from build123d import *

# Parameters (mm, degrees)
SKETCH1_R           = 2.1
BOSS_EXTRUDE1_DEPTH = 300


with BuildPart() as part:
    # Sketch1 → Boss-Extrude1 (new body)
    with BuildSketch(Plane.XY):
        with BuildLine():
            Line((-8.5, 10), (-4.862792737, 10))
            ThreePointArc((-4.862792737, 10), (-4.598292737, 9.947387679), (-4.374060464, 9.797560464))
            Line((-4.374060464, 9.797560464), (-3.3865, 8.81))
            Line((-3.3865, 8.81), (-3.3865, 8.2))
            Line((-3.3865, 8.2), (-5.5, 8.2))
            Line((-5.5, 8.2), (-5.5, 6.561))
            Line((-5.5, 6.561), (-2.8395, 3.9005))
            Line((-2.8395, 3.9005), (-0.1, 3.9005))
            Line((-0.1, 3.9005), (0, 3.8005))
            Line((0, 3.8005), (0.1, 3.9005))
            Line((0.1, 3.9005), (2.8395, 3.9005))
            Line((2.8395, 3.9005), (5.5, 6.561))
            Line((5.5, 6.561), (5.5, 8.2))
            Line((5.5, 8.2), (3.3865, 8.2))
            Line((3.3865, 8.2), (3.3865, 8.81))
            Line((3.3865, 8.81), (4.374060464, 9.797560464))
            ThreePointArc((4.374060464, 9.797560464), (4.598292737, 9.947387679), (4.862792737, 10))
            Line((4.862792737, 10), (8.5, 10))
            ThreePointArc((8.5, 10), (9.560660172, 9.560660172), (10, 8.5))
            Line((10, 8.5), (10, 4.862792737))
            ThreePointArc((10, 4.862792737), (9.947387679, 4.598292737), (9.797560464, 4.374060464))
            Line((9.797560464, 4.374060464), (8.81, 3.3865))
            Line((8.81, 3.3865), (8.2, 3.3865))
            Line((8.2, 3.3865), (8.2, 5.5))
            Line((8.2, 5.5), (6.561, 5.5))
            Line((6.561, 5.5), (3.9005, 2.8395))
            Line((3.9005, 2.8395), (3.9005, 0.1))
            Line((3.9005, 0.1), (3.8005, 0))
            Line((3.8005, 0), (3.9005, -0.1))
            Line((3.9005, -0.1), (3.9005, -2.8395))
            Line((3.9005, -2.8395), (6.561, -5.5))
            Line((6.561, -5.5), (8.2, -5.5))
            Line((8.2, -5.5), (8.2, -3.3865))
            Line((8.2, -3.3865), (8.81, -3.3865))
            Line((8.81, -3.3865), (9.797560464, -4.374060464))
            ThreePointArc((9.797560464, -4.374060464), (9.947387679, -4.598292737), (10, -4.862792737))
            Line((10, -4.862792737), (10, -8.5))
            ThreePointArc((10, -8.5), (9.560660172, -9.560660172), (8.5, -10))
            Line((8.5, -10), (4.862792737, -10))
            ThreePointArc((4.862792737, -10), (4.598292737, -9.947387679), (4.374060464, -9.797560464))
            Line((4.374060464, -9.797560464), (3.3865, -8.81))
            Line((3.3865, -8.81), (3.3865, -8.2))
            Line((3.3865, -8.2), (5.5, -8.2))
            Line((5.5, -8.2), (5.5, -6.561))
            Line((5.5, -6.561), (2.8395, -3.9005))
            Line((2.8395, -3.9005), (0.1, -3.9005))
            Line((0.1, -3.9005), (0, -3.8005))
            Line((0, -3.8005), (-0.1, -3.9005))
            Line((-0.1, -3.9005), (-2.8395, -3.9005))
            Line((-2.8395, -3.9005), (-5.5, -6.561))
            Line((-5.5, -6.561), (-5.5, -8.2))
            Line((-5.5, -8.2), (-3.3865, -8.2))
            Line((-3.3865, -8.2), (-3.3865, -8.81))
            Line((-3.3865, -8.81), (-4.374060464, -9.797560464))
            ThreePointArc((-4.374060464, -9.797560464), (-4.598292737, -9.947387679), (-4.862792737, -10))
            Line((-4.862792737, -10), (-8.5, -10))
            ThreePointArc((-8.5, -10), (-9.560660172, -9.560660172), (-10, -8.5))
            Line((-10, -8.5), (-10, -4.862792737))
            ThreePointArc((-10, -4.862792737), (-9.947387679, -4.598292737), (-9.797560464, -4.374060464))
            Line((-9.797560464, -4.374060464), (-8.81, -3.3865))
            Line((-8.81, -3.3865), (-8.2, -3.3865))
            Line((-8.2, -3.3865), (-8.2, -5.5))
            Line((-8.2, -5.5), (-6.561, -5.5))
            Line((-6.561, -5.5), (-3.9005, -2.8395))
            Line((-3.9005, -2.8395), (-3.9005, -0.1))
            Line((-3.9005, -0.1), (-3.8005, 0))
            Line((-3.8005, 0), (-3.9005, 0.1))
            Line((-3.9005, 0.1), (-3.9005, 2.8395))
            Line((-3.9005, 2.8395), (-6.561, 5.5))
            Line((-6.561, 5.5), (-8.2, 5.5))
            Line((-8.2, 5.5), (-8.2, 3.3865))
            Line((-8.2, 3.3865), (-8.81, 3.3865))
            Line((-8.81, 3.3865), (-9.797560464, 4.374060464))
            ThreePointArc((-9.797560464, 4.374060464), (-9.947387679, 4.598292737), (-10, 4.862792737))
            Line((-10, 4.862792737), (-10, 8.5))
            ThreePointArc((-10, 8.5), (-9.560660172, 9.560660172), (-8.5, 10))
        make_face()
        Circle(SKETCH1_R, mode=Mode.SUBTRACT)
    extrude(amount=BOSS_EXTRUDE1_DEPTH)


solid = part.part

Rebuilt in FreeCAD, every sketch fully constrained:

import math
import FreeCAD as App
import Part
import Sketcher
from FreeCAD import Vector
Q = App.Units.Quantity

doc = App.newDocument("Part")
body = doc.addObject("PartDesign::Body", "Body")

# Sketch on XY plane
sketch1 = body.newObject("Sketcher::SketchObject", "Sketch")
sketch1.AttachmentSupport = (doc.getObject("XY_Plane"), [""])
sketch1.MapMode = "FlatFace"
sketch1.addGeometry(Part.LineSegment(Vector(-4.862793, 10, 0), Vector(-8.5, 10, 0)), False)
sketch1.addGeometry(Part.ArcOfCircle(Part.Circle(Vector(-8.5, 8.5, 0), Vector(0, 0, 1), 1.5), math.radians(90), math.radians(180)), False)
sketch1.addGeometry(Part.LineSegment(Vector(-10, 8.5, 0), Vector(-10, 4.862793, 0)), False)
sketch1.addGeometry(Part.ArcOfCircle(Part.Circle(Vector(-9.308828, 4.862793, 0), Vector(0, 0, 1), 0.691172), math.radians(180), math.radians(225)), False)
sketch1.addGeometry(Part.LineSegment(Vector(-9.79756, 4.37406, 0), Vector(-8.81, 3.3865, 0)), False)
sketch1.addGeometry(Part.LineSegment(Vector(-8.81, 3.3865, 0), Vector(-8.2, 3.3865, 0)), False)
sketch1.addGeometry(Part.LineSegment(Vector(-8.2, 3.3865, 0), Vector(-8.2, 5.5, 0)), False)
sketch1.addGeometry(Part.LineSegment(Vector(-8.2, 5.5, 0), Vector(-6.561, 5.5, 0)), False)
sketch1.addGeometry(Part.LineSegment(Vector(-6.561, 5.5, 0), Vector(-3.9005, 2.8395, 0)), False)
sketch1.addGeometry(Part.LineSegment(Vector(-3.9005, 2.8395, 0), Vector(-3.9005, 0.1, 0)), False)
sketch1.addGeometry(Part.LineSegment(Vector(-3.9005, 0.1, 0), Vector(-3.8005, 0, 0)), False)
sketch1.addGeometry(Part.LineSegment(Vector(-3.8005, 0, 0), Vector(-3.9005, -0.1, 0)), False)
sketch1.addGeometry(Part.LineSegment(Vector(-3.9005, -0.1, 0), Vector(-3.9005, -2.8395, 0)), False)
sketch1.addGeometry(Part.LineSegment(Vector(-3.9005, -2.8395, 0), Vector(-6.561, -5.5, 0)), False)
sketch1.addGeometry(Part.LineSegment(Vector(-6.561, -5.5, 0), Vector(-8.2, -5.5, 0)), False)
sketch1.addGeometry(Part.LineSegment(Vector(-8.2, -5.5, 0), Vector(-8.2, -3.3865, 0)), False)
sketch1.addGeometry(Part.LineSegment(Vector(-8.2, -3.3865, 0), Vector(-8.81, -3.3865, 0)), False)
sketch1.addGeometry(Part.LineSegment(Vector(-8.81, -3.3865, 0), Vector(-9.79756, -4.37406, 0)), False)
sketch1.addGeometry(Part.ArcOfCircle(Part.Circle(Vector(-9.308828, -4.862793, 0), Vector(0, 0, 1), 0.691172), math.radians(135), math.radians(180)), False)
sketch1.addGeometry(Part.LineSegment(Vector(-10, -4.862793, 0), Vector(-10, -8.5, 0)), False)
sketch1.addGeometry(Part.ArcOfCircle(Part.Circle(Vector(-8.5, -8.5, 0), Vector(0, 0, 1), 1.5), math.radians(180), math.radians(270)), False)
sketch1.addGeometry(Part.LineSegment(Vector(-8.5, -10, 0), Vector(-4.862793, -10, 0)), False)
sketch1.addGeometry(Part.ArcOfCircle(Part.Circle(Vector(-4.862793, -9.308828, 0), Vector(0, 0, 1), 0.691172), math.radians(-90), math.radians(-45)), False)
sketch1.addGeometry(Part.LineSegment(Vector(-4.37406, -9.79756, 0), Vector(-3.3865, -8.81, 0)), False)
sketch1.addGeometry(Part.LineSegment(Vector(-3.3865, -8.81, 0), Vector(-3.3865, -8.2, 0)), False)
sketch1.addGeometry(Part.LineSegment(Vector(-3.3865, -8.2, 0), Vector(-5.5, -8.2, 0)), False)
sketch1.addGeometry(Part.LineSegment(Vector(-5.5, -8.2, 0), Vector(-5.5, -6.561, 0)), False)
sketch1.addGeometry(Part.LineSegment(Vector(-5.5, -6.561, 0), Vector(-2.8395, -3.9005, 0)), False)
sketch1.addGeometry(Part.LineSegment(Vector(-2.8395, -3.9005, 0), Vector(-0.1, -3.9005, 0)), False)
sketch1.addGeometry(Part.LineSegment(Vector(-0.1, -3.9005, 0), Vector(0, -3.8005, 0)), False)
sketch1.addGeometry(Part.LineSegment(Vector(0, -3.8005, 0), Vector(0.1, -3.9005, 0)), False)
sketch1.addGeometry(Part.LineSegment(Vector(0.1, -3.9005, 0), Vector(2.8395, -3.9005, 0)), False)
sketch1.addGeometry(Part.LineSegment(Vector(2.8395, -3.9005, 0), Vector(5.5, -6.561, 0)), False)
sketch1.addGeometry(Part.LineSegment(Vector(5.5, -6.561, 0), Vector(5.5, -8.2, 0)), False)
sketch1.addGeometry(Part.LineSegment(Vector(5.5, -8.2, 0), Vector(3.3865, -8.2, 0)), False)
sketch1.addGeometry(Part.LineSegment(Vector(3.3865, -8.2, 0), Vector(3.3865, -8.81, 0)), False)
sketch1.addGeometry(Part.LineSegment(Vector(3.3865, -8.81, 0), Vector(4.37406, -9.79756, 0)), False)
sketch1.addGeometry(Part.ArcOfCircle(Part.Circle(Vector(4.862793, -9.308828, 0), Vector(0, 0, 1), 0.691172), math.radians(-135), math.radians(-90)), False)
sketch1.addGeometry(Part.LineSegment(Vector(4.862793, -10, 0), Vector(8.5, -10, 0)), False)
sketch1.addGeometry(Part.ArcOfCircle(Part.Circle(Vector(8.5, -8.5, 0), Vector(0, 0, 1), 1.5), math.radians(-90), math.radians(0)), False)
sketch1.addGeometry(Part.LineSegment(Vector(10, -8.5, 0), Vector(10, -4.862793, 0)), False)
sketch1.addGeometry(Part.ArcOfCircle(Part.Circle(Vector(9.308828, -4.862793, 0), Vector(0, 0, 1), 0.691172), math.radians(0), math.radians(45)), False)
sketch1.addGeometry(Part.LineSegment(Vector(9.79756, -4.37406, 0), Vector(8.81, -3.3865, 0)), False)
sketch1.addGeometry(Part.LineSegment(Vector(8.81, -3.3865, 0), Vector(8.2, -3.3865, 0)), False)
sketch1.addGeometry(Part.LineSegment(Vector(8.2, -3.3865, 0), Vector(8.2, -5.5, 0)), False)
sketch1.addGeometry(Part.LineSegment(Vector(8.2, -5.5, 0), Vector(6.561, -5.5, 0)), False)
sketch1.addGeometry(Part.LineSegment(Vector(6.561, -5.5, 0), Vector(3.9005, -2.8395, 0)), False)
sketch1.addGeometry(Part.LineSegment(Vector(3.9005, -2.8395, 0), Vector(3.9005, -0.1, 0)), False)
sketch1.addGeometry(Part.LineSegment(Vector(3.9005, -0.1, 0), Vector(3.8005, 0, 0)), False)
sketch1.addGeometry(Part.LineSegment(Vector(3.8005, 0, 0), Vector(3.9005, 0.1, 0)), False)
sketch1.addGeometry(Part.LineSegment(Vector(3.9005, 0.1, 0), Vector(3.9005, 2.8395, 0)), False)
sketch1.addGeometry(Part.LineSegment(Vector(3.9005, 2.8395, 0), Vector(6.561, 5.5, 0)), False)
sketch1.addGeometry(Part.LineSegment(Vector(6.561, 5.5, 0), Vector(8.2, 5.5, 0)), False)
sketch1.addGeometry(Part.LineSegment(Vector(8.2, 5.5, 0), Vector(8.2, 3.3865, 0)), False)
sketch1.addGeometry(Part.LineSegment(Vector(8.2, 3.3865, 0), Vector(8.81, 3.3865, 0)), False)
sketch1.addGeometry(Part.LineSegment(Vector(8.81, 3.3865, 0), Vector(9.79756, 4.37406, 0)), False)
sketch1.addGeometry(Part.ArcOfCircle(Part.Circle(Vector(9.308828, 4.862793, 0), Vector(0, 0, 1), 0.691172), math.radians(-45), math.radians(0)), False)
sketch1.addGeometry(Part.LineSegment(Vector(10, 4.862793, 0), Vector(10, 8.5, 0)), False)
sketch1.addGeometry(Part.ArcOfCircle(Part.Circle(Vector(8.5, 8.5, 0), Vector(0, 0, 1), 1.5), math.radians(0), math.radians(90)), False)
sketch1.addGeometry(Part.LineSegment(Vector(8.5, 10, 0), Vector(4.862793, 10, 0)), False)
sketch1.addGeometry(Part.ArcOfCircle(Part.Circle(Vector(4.862793, 9.308828, 0), Vector(0, 0, 1), 0.691172), math.radians(90), math.radians(135)), False)
sketch1.addGeometry(Part.LineSegment(Vector(4.37406, 9.79756, 0), Vector(3.3865, 8.81, 0)), False)
sketch1.addGeometry(Part.LineSegment(Vector(3.3865, 8.81, 0), Vector(3.3865, 8.2, 0)), False)
sketch1.addGeometry(Part.LineSegment(Vector(3.3865, 8.2, 0), Vector(5.5, 8.2, 0)), False)
sketch1.addGeometry(Part.LineSegment(Vector(5.5, 8.2, 0), Vector(5.5, 6.561, 0)), False)
sketch1.addGeometry(Part.LineSegment(Vector(5.5, 6.561, 0), Vector(2.8395, 3.9005, 0)), False)
sketch1.addGeometry(Part.LineSegment(Vector(2.8395, 3.9005, 0), Vector(0.1, 3.9005, 0)), False)
sketch1.addGeometry(Part.LineSegment(Vector(0.1, 3.9005, 0), Vector(0, 3.8005, 0)), False)
sketch1.addGeometry(Part.LineSegment(Vector(0, 3.8005, 0), Vector(-0.1, 3.9005, 0)), False)
sketch1.addGeometry(Part.LineSegment(Vector(-0.1, 3.9005, 0), Vector(-2.8395, 3.9005, 0)), False)
sketch1.addGeometry(Part.LineSegment(Vector(-2.8395, 3.9005, 0), Vector(-5.5, 6.561, 0)), False)
sketch1.addGeometry(Part.LineSegment(Vector(-5.5, 6.561, 0), Vector(-5.5, 8.2, 0)), False)
sketch1.addGeometry(Part.LineSegment(Vector(-5.5, 8.2, 0), Vector(-3.3865, 8.2, 0)), False)
sketch1.addGeometry(Part.LineSegment(Vector(-3.3865, 8.2, 0), Vector(-3.3865, 8.81, 0)), False)
sketch1.addGeometry(Part.LineSegment(Vector(-3.3865, 8.81, 0), Vector(-4.37406, 9.79756, 0)), False)
sketch1.addGeometry(Part.ArcOfCircle(Part.Circle(Vector(-4.862793, 9.308828, 0), Vector(0, 0, 1), 0.691172), math.radians(45), math.radians(90)), False)
sketch1.addGeometry(Part.Circle(Vector(0, 0, 0), Vector(0, 0, 1), 2.1), False)
sketch1.addConstraint(Sketcher.Constraint("Tangent", 0, 2, 1, 1))
sketch1.addConstraint(Sketcher.Constraint("Tangent", 1, 2, 2, 1))
sketch1.addConstraint(Sketcher.Constraint("Tangent", 2, 2, 3, 1))
sketch1.addConstraint(Sketcher.Constraint("Tangent", 3, 2, 4, 1))
sketch1.addConstraint(Sketcher.Constraint("Coincident", 4, 2, 5, 1))
sketch1.addConstraint(Sketcher.Constraint("Coincident", 5, 2, 6, 1))
sketch1.addConstraint(Sketcher.Constraint("Coincident", 6, 2, 7, 1))
sketch1.addConstraint(Sketcher.Constraint("Coincident", 7, 2, 8, 1))
sketch1.addConstraint(Sketcher.Constraint("Coincident", 8, 2, 9, 1))
sketch1.addConstraint(Sketcher.Constraint("Coincident", 9, 2, 10, 1))
sketch1.addConstraint(Sketcher.Constraint("Coincident", 10, 2, 11, 1))
sketch1.addConstraint(Sketcher.Constraint("Coincident", 11, 2, 12, 1))
sketch1.addConstraint(Sketcher.Constraint("Coincident", 12, 2, 13, 1))
sketch1.addConstraint(Sketcher.Constraint("Coincident", 13, 2, 14, 1))
sketch1.addConstraint(Sketcher.Constraint("Coincident", 14, 2, 15, 1))
sketch1.addConstraint(Sketcher.Constraint("Coincident", 15, 2, 16, 1))
sketch1.addConstraint(Sketcher.Constraint("Coincident", 16, 2, 17, 1))
sketch1.addConstraint(Sketcher.Constraint("Tangent", 17, 2, 18, 1))
sketch1.addConstraint(Sketcher.Constraint("Tangent", 18, 2, 19, 1))
sketch1.addConstraint(Sketcher.Constraint("Tangent", 19, 2, 20, 1))
sketch1.addConstraint(Sketcher.Constraint("Tangent", 20, 2, 21, 1))
sketch1.addConstraint(Sketcher.Constraint("Tangent", 21, 2, 22, 1))
sketch1.addConstraint(Sketcher.Constraint("Tangent", 22, 2, 23, 1))
sketch1.addConstraint(Sketcher.Constraint("Coincident", 23, 2, 24, 1))
sketch1.addConstraint(Sketcher.Constraint("Coincident", 24, 2, 25, 1))
sketch1.addConstraint(Sketcher.Constraint("Coincident", 25, 2, 26, 1))
sketch1.addConstraint(Sketcher.Constraint("Coincident", 26, 2, 27, 1))
sketch1.addConstraint(Sketcher.Constraint("Coincident", 27, 2, 28, 1))
sketch1.addConstraint(Sketcher.Constraint("Coincident", 28, 2, 29, 1))
sketch1.addConstraint(Sketcher.Constraint("Coincident", 29, 2, 30, 1))
sketch1.addConstraint(Sketcher.Constraint("Coincident", 30, 2, 31, 1))
sketch1.addConstraint(Sketcher.Constraint("Coincident", 31, 2, 32, 1))
sketch1.addConstraint(Sketcher.Constraint("Coincident", 32, 2, 33, 1))
sketch1.addConstraint(Sketcher.Constraint("Coincident", 33, 2, 34, 1))
sketch1.addConstraint(Sketcher.Constraint("Coincident", 34, 2, 35, 1))
sketch1.addConstraint(Sketcher.Constraint("Coincident", 35, 2, 36, 1))
sketch1.addConstraint(Sketcher.Constraint("Tangent", 36, 2, 37, 1))
sketch1.addConstraint(Sketcher.Constraint("Tangent", 37, 2, 38, 1))
sketch1.addConstraint(Sketcher.Constraint("Tangent", 38, 2, 39, 1))
sketch1.addConstraint(Sketcher.Constraint("Tangent", 39, 2, 40, 1))
sketch1.addConstraint(Sketcher.Constraint("Tangent", 40, 2, 41, 1))
sketch1.addConstraint(Sketcher.Constraint("Tangent", 41, 2, 42, 1))
sketch1.addConstraint(Sketcher.Constraint("Coincident", 42, 2, 43, 1))
sketch1.addConstraint(Sketcher.Constraint("Coincident", 43, 2, 44, 1))
sketch1.addConstraint(Sketcher.Constraint("Coincident", 44, 2, 45, 1))
sketch1.addConstraint(Sketcher.Constraint("Coincident", 45, 2, 46, 1))
sketch1.addConstraint(Sketcher.Constraint("Coincident", 46, 2, 47, 1))
sketch1.addConstraint(Sketcher.Constraint("Coincident", 47, 2, 48, 1))
sketch1.addConstraint(Sketcher.Constraint("Coincident", 48, 2, 49, 1))
sketch1.addConstraint(Sketcher.Constraint("Coincident", 49, 2, 50, 1))
sketch1.addConstraint(Sketcher.Constraint("Coincident", 50, 2, 51, 1))
sketch1.addConstraint(Sketcher.Constraint("Coincident", 51, 2, 52, 1))
sketch1.addConstraint(Sketcher.Constraint("Coincident", 52, 2, 53, 1))
sketch1.addConstraint(Sketcher.Constraint("Coincident", 53, 2, 54, 1))
sketch1.addConstraint(Sketcher.Constraint("Coincident", 54, 2, 55, 1))
sketch1.addConstraint(Sketcher.Constraint("Tangent", 55, 2, 56, 1))
sketch1.addConstraint(Sketcher.Constraint("Tangent", 56, 2, 57, 1))
sketch1.addConstraint(Sketcher.Constraint("Tangent", 57, 2, 58, 1))
sketch1.addConstraint(Sketcher.Constraint("Tangent", 58, 2, 59, 1))
sketch1.addConstraint(Sketcher.Constraint("Tangent", 59, 2, 60, 1))
sketch1.addConstraint(Sketcher.Constraint("Tangent", 60, 2, 61, 1))
sketch1.addConstraint(Sketcher.Constraint("Coincident", 61, 2, 62, 1))
sketch1.addConstraint(Sketcher.Constraint("Coincident", 62, 2, 63, 1))
sketch1.addConstraint(Sketcher.Constraint("Coincident", 63, 2, 64, 1))
sketch1.addConstraint(Sketcher.Constraint("Coincident", 64, 2, 65, 1))
sketch1.addConstraint(Sketcher.Constraint("Coincident", 65, 2, 66, 1))
sketch1.addConstraint(Sketcher.Constraint("Coincident", 66, 2, 67, 1))
sketch1.addConstraint(Sketcher.Constraint("Coincident", 67, 2, 68, 1))
sketch1.addConstraint(Sketcher.Constraint("Coincident", 68, 2, 69, 1))
sketch1.addConstraint(Sketcher.Constraint("Coincident", 69, 2, 70, 1))
sketch1.addConstraint(Sketcher.Constraint("Coincident", 70, 2, 71, 1))
sketch1.addConstraint(Sketcher.Constraint("Coincident", 71, 2, 72, 1))
sketch1.addConstraint(Sketcher.Constraint("Coincident", 72, 2, 73, 1))
sketch1.addConstraint(Sketcher.Constraint("Coincident", 73, 2, 74, 1))
sketch1.addConstraint(Sketcher.Constraint("Tangent", 74, 2, 75, 1))
sketch1.addConstraint(Sketcher.Constraint("Tangent", 75, 2, 0, 1))
sketch1.addConstraint(Sketcher.Constraint("Horizontal", 0))
sketch1.addConstraint(Sketcher.Constraint("Vertical", 2))
sketch1.addConstraint(Sketcher.Constraint("Horizontal", 5))
sketch1.addConstraint(Sketcher.Constraint("Vertical", 6))
sketch1.addConstraint(Sketcher.Constraint("Horizontal", 7))
sketch1.addConstraint(Sketcher.Constraint("Vertical", 9))
sketch1.addConstraint(Sketcher.Constraint("Vertical", 12))
sketch1.addConstraint(Sketcher.Constraint("Horizontal", 14))
sketch1.addConstraint(Sketcher.Constraint("Vertical", 15))
sketch1.addConstraint(Sketcher.Constraint("Horizontal", 16))
sketch1.addConstraint(Sketcher.Constraint("Vertical", 19))
sketch1.addConstraint(Sketcher.Constraint("Horizontal", 21))
sketch1.addConstraint(Sketcher.Constraint("Vertical", 24))
sketch1.addConstraint(Sketcher.Constraint("Horizontal", 25))
sketch1.addConstraint(Sketcher.Constraint("Vertical", 26))
sketch1.addConstraint(Sketcher.Constraint("Horizontal", 28))
sketch1.addConstraint(Sketcher.Constraint("Horizontal", 31))
sketch1.addConstraint(Sketcher.Constraint("Vertical", 33))
sketch1.addConstraint(Sketcher.Constraint("Horizontal", 34))
sketch1.addConstraint(Sketcher.Constraint("Vertical", 35))
sketch1.addConstraint(Sketcher.Constraint("Horizontal", 38))
sketch1.addConstraint(Sketcher.Constraint("Vertical", 40))
sketch1.addConstraint(Sketcher.Constraint("Horizontal", 43))
sketch1.addConstraint(Sketcher.Constraint("Vertical", 44))
sketch1.addConstraint(Sketcher.Constraint("Horizontal", 45))
sketch1.addConstraint(Sketcher.Constraint("Vertical", 47))
sketch1.addConstraint(Sketcher.Constraint("Vertical", 50))
sketch1.addConstraint(Sketcher.Constraint("Horizontal", 52))
sketch1.addConstraint(Sketcher.Constraint("Vertical", 53))
sketch1.addConstraint(Sketcher.Constraint("Horizontal", 54))
sketch1.addConstraint(Sketcher.Constraint("Vertical", 57))
sketch1.addConstraint(Sketcher.Constraint("Horizontal", 59))
sketch1.addConstraint(Sketcher.Constraint("Vertical", 62))
sketch1.addConstraint(Sketcher.Constraint("Horizontal", 63))
sketch1.addConstraint(Sketcher.Constraint("Vertical", 64))
sketch1.addConstraint(Sketcher.Constraint("Horizontal", 66))
sketch1.addConstraint(Sketcher.Constraint("Horizontal", 69))
sketch1.addConstraint(Sketcher.Constraint("Vertical", 71))
sketch1.addConstraint(Sketcher.Constraint("Horizontal", 72))
sketch1.addConstraint(Sketcher.Constraint("Vertical", 73))
sketch1.addConstraint(Sketcher.Constraint("Coincident", 76, 3, -1, 1))
sketch1.addConstraint(Sketcher.Constraint("Equal", 3, 18))
sketch1.addConstraint(Sketcher.Constraint("Equal", 1, 20))
sketch1.addConstraint(Sketcher.Constraint("Equal", 18, 22))
sketch1.addConstraint(Sketcher.Constraint("Equal", 22, 37))
sketch1.addConstraint(Sketcher.Constraint("Equal", 20, 39))
sketch1.addConstraint(Sketcher.Constraint("Equal", 37, 41))
sketch1.addConstraint(Sketcher.Constraint("Equal", 41, 56))
sketch1.addConstraint(Sketcher.Constraint("Equal", 39, 58))
sketch1.addConstraint(Sketcher.Constraint("Equal", 56, 60))
sketch1.addConstraint(Sketcher.Constraint("Equal", 60, 75))
sketch1.addConstraint(Sketcher.Constraint("Symmetric", 1, 3, 39, 3, -1, 1))
sketch1.addConstraint(Sketcher.Constraint("Symmetric", 18, 3, 56, 3, -1, 1))
sketch1.addConstraint(Sketcher.Constraint("Symmetric", 22, 3, 60, 3, -1, 1))
sketch1.addConstraint(Sketcher.Constraint("Symmetric", 3, 2, 41, 2, -1, 1))
sketch1.addConstraint(Sketcher.Constraint("Symmetric", 5, 2, 43, 2, -1, 1))
sketch1.addConstraint(Sketcher.Constraint("Symmetric", 7, 2, 45, 2, -1, 1))
sketch1.addConstraint(Sketcher.Constraint("Symmetric", 8, 2, 46, 2, -1, 1))
sketch1.addConstraint(Sketcher.Constraint("Symmetric", 10, 2, 48, 2, -1, 1))
sketch1.addConstraint(Sketcher.Constraint("Symmetric", 11, 2, 49, 2, -1, 1))
sketch1.addConstraint(Sketcher.Constraint("Symmetric", 13, 2, 51, 2, -1, 1))
sketch1.addConstraint(Sketcher.Constraint("Symmetric", 15, 2, 53, 2, -1, 1))
sketch1.addConstraint(Sketcher.Constraint("Symmetric", 23, 2, 61, 2, -1, 1))
sketch1.addConstraint(Sketcher.Constraint("Symmetric", 25, 2, 63, 2, -1, 1))
sketch1.addConstraint(Sketcher.Constraint("Symmetric", 27, 2, 65, 2, -1, 1))
sketch1.addConstraint(Sketcher.Constraint("Symmetric", 29, 2, 67, 2, -1, 1))
sketch1.addConstraint(Sketcher.Constraint("Symmetric", 30, 2, 68, 2, -1, 1))
sketch1.addConstraint(Sketcher.Constraint("Symmetric", 32, 2, 70, 2, -1, 1))
sketch1.addConstraint(Sketcher.Constraint("Symmetric", 34, 2, 72, 2, -1, 1))
sketch1.addConstraint(Sketcher.Constraint("Symmetric", 36, 2, 74, 2, -1, 1))
sketch1.addConstraint(Sketcher.Constraint("Symmetric", 22, 3, 37, 3, -2))
sketch1.addConstraint(Sketcher.Constraint("Symmetric", 18, 3, 41, 3, -2))
sketch1.addConstraint(Sketcher.Constraint("Symmetric", 28, 2, 30, 2, -2))
sketch1.addConstraint(Sketcher.Constraint("Symmetric", 26, 2, 32, 2, -2))
sketch1.addConstraint(Sketcher.Constraint("Symmetric", 24, 2, 34, 2, -2))
sketch1.addConstraint(Sketcher.Constraint("Symmetric", 16, 2, 42, 2, -2))
sketch1.addConstraint(Sketcher.Constraint("Symmetric", 14, 2, 44, 2, -2))
sketch1.addConstraint(Sketcher.Constraint("Symmetric", 12, 2, 46, 2, -2))
sketch1.addConstraint(Sketcher.Constraint("PointOnObject", 10, 2, -1))
sketch1.addConstraint(Sketcher.Constraint("PointOnObject", 29, 2, -2))
sketch1.addConstraint(Sketcher.Constraint("Parallel", 4, 8))
sketch1.addConstraint(Sketcher.Constraint("Parallel", 8, 10))
sketch1.addConstraint(Sketcher.Constraint("Perpendicular", 10, 11))
sketch1.addConstraint(Sketcher.Constraint("Parallel", 11, 13))
sketch1.addConstraint(Sketcher.Constraint("Parallel", 13, 17))
sketch1.addConstraint(Sketcher.Constraint("Parallel", 17, 23))
sketch1.addConstraint(Sketcher.Constraint("Parallel", 23, 27))
sketch1.addConstraint(Sketcher.Constraint("Parallel", 27, 29))
sketch1.addConstraint(Sketcher.Constraint("Parallel", 30, 32))
sketch1.addConstraint(Sketcher.Constraint("Parallel", 32, 36))
sketch1.addConstraint(Sketcher.Constraint("Parallel", 46, 48))
sketch1.addConstraint(Sketcher.Constraint("Parallel", 49, 51))
sketch1.addConstraint(Sketcher.Constraint("Parallel", 51, 55))
sketch1.addConstraint(Sketcher.Constraint("Parallel", 61, 65))
sketch1.addConstraint(Sketcher.Constraint("Parallel", 65, 67))
sketch1.addConstraint(Sketcher.Constraint("Parallel", 68, 70))
sketch1.addConstraint(Sketcher.Constraint("Equal", 59, 2))
sketch1.addConstraint(Sketcher.Constraint("Equal", 72, 6))
sketch1.addConstraint(Sketcher.Constraint("Equal", 69, 9))
sketch1.addConstraint(Sketcher.Constraint("Equal", 54, 24))
sketch1.addConstraint(Sketcher.Constraint("Equal", 52, 26))
sketch1.addConstraint(Sketcher.Constraint("Equal", 17, 23))
sketch1.addConstraint(Sketcher.Constraint("Equal", 13, 27))
sketch1.addConstraint(Sketcher.Constraint("Equal", 11, 29))
sketch1.addConstraint(Sketcher.Constraint("Diameter", 76, Q("4.2 mm")))
sketch1.addConstraint(Sketcher.Constraint("Radius", 1, Q("1.5 mm")))
sketch1.addConstraint(Sketcher.Constraint("DistanceY", -1, 1, 0, 2, Q("10 mm")))
sketch1.addConstraint(Sketcher.Constraint("DistanceX", 5, 1, 5, 2, Q("0.61 mm")))
sketch1.addConstraint(Sketcher.Constraint("DistanceX", 5, 2, -1, 1, Q("8.2 mm")))
sketch1.addConstraint(Sketcher.Constraint("DistanceY", -1, 1, 6, 2, Q("5.5 mm")))
sketch1.addConstraint(Sketcher.Constraint("DistanceY", -1, 1, 9, 2, Q("0.1 mm")))
sketch1.addConstraint(Sketcher.Constraint("DistanceX", 7, 1, 7, 2, Q("1.639 mm")))
sketch1.addConstraint(Sketcher.Constraint("Radius", 3, Q("0.691172 mm")))
sketch1.addConstraint(Sketcher.Constraint("DistanceX", 25, 2, 25, 1, Q("2.1135 mm")))
sketch1.addConstraint(Sketcher.Constraint("DistanceX", 28, 1, 28, 2, Q("2.7395 mm")))
pad1 = body.newObject("PartDesign::Pad", "Pad")
pad1.Profile = sketch1
pad1.Length = 300

doc.recompute()
